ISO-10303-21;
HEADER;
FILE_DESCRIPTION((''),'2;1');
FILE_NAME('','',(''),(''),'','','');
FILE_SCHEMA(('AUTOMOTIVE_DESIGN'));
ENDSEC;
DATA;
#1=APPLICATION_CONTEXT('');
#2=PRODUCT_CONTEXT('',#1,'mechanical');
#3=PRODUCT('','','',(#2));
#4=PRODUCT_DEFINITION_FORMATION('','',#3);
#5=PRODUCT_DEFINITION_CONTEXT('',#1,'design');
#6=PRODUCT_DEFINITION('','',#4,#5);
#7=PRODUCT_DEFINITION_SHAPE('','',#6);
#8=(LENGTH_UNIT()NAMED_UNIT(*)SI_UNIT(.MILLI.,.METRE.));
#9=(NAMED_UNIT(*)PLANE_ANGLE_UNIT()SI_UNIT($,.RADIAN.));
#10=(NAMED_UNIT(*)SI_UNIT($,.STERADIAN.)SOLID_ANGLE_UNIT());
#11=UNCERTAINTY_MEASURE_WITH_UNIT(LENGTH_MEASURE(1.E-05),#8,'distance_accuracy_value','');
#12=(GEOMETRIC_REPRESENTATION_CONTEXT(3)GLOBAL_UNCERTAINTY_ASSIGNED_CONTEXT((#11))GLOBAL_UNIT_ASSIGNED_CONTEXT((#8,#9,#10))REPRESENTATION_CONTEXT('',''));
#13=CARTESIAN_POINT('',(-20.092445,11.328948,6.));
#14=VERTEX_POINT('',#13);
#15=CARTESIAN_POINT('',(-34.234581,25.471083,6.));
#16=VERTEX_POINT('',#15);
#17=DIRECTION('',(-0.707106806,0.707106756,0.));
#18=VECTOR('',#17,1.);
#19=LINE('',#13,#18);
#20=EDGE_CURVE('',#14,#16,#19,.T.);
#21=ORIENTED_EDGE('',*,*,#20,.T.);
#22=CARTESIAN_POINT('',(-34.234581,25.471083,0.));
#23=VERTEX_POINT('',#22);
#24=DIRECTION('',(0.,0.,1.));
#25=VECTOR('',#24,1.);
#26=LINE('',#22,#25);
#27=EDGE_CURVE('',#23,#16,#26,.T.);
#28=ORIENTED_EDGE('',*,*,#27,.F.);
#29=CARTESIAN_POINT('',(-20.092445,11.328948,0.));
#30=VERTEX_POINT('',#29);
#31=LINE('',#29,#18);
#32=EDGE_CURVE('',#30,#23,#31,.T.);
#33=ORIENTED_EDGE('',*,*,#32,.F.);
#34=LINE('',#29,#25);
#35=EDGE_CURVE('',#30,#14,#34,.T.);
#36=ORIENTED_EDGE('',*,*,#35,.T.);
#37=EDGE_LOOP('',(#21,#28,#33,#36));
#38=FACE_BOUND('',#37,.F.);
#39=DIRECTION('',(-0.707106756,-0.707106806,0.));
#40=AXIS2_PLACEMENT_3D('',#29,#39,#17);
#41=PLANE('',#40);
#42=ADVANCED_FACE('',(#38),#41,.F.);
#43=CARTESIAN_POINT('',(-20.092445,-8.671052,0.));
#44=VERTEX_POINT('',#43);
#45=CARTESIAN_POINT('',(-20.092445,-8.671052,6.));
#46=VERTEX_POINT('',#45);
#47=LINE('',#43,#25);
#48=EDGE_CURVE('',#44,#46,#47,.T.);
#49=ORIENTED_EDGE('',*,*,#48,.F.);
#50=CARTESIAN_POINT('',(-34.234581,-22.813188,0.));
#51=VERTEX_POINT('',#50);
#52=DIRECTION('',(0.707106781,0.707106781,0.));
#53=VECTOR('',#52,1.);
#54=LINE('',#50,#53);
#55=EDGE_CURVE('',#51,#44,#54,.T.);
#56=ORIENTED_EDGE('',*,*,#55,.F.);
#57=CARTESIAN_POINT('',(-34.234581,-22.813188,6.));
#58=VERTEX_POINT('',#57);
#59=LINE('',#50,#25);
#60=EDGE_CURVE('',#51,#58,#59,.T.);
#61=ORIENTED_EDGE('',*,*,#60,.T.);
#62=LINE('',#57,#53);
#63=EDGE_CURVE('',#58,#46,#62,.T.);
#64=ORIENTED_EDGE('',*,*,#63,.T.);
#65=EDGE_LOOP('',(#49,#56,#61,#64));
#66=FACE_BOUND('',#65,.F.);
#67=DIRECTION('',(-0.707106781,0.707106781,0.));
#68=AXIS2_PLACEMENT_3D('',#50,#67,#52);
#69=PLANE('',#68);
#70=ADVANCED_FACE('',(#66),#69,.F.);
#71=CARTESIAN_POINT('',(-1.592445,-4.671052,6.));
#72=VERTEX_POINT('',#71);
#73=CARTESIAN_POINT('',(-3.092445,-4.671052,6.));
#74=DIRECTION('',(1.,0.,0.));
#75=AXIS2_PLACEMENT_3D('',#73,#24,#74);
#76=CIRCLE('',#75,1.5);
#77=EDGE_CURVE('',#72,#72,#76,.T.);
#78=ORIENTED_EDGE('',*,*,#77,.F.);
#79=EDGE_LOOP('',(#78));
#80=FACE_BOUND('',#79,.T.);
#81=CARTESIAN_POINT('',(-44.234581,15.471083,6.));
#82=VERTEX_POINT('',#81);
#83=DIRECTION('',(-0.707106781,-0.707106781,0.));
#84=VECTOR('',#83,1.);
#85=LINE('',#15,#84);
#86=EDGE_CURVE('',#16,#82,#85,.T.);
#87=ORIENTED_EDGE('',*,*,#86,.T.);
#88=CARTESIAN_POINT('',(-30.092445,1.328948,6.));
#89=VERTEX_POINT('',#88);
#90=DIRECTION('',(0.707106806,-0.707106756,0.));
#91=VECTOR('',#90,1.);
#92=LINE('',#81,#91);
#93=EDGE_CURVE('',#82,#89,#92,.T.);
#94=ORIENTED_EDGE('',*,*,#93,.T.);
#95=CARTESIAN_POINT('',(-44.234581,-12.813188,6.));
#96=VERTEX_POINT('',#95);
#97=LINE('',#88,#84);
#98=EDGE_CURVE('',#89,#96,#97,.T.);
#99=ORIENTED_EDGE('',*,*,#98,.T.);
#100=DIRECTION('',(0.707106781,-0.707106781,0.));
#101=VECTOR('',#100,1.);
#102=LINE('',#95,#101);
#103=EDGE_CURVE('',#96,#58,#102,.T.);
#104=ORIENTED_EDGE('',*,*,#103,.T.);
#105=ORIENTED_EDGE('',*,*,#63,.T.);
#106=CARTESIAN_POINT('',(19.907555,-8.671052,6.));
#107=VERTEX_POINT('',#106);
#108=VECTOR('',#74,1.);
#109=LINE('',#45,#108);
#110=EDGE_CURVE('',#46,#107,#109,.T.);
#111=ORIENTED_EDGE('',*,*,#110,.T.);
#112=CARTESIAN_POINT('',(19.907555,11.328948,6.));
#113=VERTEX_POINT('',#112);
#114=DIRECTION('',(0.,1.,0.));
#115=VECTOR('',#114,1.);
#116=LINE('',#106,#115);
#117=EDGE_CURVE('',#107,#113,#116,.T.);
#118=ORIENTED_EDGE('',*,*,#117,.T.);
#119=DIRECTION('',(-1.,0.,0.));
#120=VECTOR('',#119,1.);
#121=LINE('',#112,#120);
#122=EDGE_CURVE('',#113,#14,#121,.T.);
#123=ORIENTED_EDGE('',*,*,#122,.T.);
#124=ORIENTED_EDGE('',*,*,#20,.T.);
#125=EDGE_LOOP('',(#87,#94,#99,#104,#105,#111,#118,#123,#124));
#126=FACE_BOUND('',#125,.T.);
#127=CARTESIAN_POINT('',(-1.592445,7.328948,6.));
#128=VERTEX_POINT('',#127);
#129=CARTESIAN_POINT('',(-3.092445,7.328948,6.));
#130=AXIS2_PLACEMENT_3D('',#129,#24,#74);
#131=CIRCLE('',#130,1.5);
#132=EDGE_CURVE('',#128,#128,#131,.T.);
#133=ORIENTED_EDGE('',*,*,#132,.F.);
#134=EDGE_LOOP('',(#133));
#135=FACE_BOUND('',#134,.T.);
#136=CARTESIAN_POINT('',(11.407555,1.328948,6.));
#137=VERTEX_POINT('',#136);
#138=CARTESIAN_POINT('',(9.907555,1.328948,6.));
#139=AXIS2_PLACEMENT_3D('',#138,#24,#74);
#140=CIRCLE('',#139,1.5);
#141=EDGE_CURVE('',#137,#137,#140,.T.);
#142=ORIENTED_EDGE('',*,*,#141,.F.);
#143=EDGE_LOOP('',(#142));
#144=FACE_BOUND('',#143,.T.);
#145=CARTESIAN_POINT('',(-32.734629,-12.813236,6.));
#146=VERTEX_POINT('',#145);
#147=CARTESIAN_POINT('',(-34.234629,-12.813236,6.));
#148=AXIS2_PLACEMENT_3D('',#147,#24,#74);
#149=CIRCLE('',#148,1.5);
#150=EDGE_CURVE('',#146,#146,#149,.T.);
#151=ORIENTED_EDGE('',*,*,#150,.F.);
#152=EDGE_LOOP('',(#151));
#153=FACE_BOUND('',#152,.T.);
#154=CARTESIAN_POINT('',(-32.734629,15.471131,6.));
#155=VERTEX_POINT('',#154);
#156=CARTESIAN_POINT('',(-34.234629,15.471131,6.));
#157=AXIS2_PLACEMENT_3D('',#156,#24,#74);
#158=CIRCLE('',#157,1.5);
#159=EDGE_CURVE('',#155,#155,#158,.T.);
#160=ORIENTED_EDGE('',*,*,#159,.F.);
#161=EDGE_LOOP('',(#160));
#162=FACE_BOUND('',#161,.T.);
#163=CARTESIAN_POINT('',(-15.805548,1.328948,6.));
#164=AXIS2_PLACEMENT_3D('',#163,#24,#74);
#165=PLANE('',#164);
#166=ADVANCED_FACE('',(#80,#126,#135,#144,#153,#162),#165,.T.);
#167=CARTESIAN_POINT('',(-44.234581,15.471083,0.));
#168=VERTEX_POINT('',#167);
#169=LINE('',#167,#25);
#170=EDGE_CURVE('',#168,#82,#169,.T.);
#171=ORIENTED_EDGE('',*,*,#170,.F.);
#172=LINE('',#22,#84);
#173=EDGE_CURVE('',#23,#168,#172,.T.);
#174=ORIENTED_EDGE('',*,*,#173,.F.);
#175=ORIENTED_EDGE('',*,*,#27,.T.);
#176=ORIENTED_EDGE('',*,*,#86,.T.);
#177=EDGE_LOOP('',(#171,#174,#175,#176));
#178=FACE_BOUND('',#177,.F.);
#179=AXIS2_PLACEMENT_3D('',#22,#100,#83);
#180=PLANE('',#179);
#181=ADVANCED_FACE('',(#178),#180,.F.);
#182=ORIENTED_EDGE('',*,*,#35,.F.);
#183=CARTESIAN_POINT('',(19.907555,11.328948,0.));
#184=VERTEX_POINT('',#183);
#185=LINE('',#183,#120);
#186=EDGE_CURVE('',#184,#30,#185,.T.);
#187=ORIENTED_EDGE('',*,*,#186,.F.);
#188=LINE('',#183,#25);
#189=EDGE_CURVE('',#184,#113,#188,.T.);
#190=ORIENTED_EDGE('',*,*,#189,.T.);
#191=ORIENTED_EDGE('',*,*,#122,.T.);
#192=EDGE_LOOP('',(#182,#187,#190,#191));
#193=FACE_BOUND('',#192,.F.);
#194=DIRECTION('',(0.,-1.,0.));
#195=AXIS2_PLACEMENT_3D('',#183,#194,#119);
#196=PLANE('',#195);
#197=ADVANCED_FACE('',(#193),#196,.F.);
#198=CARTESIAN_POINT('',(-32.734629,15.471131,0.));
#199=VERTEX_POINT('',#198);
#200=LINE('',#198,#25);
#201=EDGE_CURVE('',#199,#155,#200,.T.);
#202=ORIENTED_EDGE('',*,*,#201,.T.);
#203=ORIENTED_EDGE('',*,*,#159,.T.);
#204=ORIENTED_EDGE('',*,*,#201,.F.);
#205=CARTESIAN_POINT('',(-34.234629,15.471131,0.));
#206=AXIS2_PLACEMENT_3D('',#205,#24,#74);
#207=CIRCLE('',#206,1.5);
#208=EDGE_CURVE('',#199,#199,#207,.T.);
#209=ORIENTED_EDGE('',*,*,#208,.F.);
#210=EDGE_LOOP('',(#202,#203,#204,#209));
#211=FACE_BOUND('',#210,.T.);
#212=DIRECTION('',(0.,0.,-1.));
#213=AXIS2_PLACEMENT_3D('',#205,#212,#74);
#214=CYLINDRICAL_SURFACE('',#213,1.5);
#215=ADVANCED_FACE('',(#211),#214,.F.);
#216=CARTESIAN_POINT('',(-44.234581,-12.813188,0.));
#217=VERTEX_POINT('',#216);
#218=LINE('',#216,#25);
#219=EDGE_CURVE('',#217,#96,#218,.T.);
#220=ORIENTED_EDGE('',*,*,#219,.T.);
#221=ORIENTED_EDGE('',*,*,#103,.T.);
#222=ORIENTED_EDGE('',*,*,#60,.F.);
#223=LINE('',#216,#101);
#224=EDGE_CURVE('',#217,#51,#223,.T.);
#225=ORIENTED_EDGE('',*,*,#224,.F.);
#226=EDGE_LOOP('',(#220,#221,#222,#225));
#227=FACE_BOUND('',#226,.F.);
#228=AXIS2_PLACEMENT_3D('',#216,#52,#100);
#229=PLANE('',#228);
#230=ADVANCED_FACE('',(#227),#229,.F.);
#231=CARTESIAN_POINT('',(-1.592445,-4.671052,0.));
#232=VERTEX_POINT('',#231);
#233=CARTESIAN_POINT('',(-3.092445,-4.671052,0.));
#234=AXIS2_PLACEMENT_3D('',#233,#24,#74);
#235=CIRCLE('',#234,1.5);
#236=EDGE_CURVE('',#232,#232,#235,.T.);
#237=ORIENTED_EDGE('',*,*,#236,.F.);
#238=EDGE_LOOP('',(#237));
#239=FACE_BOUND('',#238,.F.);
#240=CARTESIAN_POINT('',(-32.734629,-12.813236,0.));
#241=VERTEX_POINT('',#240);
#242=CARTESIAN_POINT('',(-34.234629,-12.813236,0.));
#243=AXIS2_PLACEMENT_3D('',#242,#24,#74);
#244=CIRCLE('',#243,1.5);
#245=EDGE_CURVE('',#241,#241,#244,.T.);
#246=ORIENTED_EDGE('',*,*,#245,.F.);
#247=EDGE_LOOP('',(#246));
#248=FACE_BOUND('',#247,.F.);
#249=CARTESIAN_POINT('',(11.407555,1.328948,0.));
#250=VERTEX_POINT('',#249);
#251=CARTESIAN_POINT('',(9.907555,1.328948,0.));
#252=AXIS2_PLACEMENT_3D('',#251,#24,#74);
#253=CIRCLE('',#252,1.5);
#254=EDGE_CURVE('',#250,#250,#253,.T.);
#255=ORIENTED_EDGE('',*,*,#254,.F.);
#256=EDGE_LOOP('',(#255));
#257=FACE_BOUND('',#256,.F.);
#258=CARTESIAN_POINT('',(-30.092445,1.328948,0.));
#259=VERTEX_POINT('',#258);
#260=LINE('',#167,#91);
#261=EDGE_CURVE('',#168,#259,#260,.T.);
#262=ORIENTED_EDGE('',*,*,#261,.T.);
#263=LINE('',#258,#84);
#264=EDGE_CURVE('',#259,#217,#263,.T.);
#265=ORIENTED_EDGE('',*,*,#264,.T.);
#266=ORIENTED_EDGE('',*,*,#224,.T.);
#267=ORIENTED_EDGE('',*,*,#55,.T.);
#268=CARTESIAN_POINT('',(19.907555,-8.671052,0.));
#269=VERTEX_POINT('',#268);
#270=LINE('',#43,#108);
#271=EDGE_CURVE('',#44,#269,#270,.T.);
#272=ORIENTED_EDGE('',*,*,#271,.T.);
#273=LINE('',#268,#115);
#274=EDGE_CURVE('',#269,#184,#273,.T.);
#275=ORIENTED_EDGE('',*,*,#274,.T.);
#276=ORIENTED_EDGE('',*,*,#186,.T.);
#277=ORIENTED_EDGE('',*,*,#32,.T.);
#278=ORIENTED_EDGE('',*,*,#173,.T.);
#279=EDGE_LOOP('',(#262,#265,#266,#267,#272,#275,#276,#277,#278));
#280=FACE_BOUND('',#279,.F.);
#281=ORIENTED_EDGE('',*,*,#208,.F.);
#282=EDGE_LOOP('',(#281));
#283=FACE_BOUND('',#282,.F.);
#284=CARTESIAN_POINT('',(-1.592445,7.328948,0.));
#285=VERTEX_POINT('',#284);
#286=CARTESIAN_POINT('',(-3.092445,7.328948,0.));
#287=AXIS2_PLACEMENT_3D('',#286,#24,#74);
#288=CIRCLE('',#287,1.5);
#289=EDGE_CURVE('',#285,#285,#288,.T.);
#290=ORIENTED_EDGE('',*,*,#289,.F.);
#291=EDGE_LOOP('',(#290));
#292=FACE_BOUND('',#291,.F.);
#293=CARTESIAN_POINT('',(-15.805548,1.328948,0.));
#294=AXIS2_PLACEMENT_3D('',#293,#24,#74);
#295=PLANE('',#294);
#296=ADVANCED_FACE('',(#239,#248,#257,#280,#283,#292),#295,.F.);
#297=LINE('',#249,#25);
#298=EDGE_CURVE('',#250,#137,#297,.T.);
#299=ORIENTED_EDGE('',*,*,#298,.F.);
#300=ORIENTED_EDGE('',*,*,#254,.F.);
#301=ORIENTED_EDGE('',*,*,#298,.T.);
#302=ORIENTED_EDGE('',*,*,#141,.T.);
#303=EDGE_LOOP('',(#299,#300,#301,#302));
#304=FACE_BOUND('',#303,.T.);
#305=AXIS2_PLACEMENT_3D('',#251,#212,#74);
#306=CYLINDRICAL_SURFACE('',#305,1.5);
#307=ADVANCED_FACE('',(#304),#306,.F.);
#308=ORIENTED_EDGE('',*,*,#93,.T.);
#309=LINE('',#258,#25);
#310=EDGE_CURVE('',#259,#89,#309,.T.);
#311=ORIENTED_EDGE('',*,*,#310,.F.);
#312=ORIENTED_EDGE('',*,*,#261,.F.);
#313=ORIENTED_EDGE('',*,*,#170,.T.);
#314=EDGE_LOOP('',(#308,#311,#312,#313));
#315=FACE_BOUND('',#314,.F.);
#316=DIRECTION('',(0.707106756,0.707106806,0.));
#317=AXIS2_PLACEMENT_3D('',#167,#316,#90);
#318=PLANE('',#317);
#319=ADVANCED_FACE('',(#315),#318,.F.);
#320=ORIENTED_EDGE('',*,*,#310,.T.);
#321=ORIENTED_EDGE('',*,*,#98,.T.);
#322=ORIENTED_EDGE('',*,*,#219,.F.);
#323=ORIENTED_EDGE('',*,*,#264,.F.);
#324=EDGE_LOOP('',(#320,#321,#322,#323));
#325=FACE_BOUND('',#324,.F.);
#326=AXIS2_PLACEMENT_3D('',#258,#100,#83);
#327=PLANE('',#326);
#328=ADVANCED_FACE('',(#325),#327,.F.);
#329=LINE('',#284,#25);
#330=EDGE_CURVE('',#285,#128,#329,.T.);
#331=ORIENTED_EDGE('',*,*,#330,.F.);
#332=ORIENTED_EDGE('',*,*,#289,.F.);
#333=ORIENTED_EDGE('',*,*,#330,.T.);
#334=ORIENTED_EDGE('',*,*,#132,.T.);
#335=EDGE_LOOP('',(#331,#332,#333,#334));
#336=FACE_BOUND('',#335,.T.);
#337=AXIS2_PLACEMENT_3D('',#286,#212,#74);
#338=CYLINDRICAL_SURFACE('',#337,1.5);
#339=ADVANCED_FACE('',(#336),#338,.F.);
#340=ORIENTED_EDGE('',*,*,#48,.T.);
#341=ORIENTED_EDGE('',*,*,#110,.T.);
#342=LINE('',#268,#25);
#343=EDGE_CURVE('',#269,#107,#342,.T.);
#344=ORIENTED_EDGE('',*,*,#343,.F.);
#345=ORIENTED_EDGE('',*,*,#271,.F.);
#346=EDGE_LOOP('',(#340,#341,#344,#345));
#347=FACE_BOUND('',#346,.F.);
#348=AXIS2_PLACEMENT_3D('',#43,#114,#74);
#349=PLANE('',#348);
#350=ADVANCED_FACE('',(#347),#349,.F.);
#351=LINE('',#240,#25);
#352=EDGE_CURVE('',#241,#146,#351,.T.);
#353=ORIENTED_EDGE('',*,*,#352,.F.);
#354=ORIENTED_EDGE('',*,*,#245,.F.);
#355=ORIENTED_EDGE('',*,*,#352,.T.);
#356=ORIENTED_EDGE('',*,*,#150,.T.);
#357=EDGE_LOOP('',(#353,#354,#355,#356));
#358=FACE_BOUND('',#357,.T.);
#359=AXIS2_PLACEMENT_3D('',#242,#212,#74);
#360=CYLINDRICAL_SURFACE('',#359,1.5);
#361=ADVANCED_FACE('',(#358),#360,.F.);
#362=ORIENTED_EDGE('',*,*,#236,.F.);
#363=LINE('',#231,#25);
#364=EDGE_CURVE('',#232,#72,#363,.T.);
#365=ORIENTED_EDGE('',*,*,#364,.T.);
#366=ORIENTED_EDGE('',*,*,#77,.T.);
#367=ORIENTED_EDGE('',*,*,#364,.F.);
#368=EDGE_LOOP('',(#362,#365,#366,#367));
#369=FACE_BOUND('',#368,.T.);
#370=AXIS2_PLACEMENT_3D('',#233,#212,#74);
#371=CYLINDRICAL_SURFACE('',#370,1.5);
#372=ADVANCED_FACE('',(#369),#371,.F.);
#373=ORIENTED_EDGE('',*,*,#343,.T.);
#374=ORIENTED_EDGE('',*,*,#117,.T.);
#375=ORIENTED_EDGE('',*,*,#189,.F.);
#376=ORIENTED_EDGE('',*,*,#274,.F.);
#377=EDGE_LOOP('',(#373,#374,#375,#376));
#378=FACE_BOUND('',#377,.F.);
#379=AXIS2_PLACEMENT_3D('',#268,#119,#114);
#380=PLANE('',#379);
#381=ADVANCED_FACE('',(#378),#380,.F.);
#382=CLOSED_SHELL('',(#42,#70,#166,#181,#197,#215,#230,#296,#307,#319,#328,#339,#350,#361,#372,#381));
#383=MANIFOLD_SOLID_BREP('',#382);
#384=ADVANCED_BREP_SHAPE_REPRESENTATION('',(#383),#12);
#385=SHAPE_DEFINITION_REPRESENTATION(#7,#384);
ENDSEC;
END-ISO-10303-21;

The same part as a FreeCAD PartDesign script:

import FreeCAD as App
import Part
import Sketcher

doc = App.newDocument("Part")
body = doc.addObject("PartDesign::Body", "Body")

sketch1 = body.newObject("Sketcher::SketchObject", "Sketch")
sketch1.AttachmentSupport = (doc.getObject("XY_Plane"), [""])
sketch1.MapMode = "FlatFace"
sketch1.addGeometry(Part.LineSegment(App.Vector(-20.1, 11.3, 0), App.Vector(-34.2, 25.5, 0)), False)
sketch1.addGeometry(Part.LineSegment(App.Vector(-34.2, 25.5, 0), App.Vector(-44.2, 15.5, 0)), False)
sketch1.addGeometry(Part.LineSegment(App.Vector(-44.2, 15.5, 0), App.Vector(-30.1, 1.3, 0)), False)
sketch1.addGeometry(Part.LineSegment(App.Vector(-30.1, 1.3, 0), App.Vector(-44.2, -12.8, 0)), False)
sketch1.addGeometry(Part.LineSegment(App.Vector(-44.2, -12.8, 0), App.Vector(-34.2, -22.8, 0)), False)
sketch1.addGeometry(Part.LineSegment(App.Vector(-34.2, -22.8, 0), App.Vector(-20.1, -8.7, 0)), False)
sketch1.addGeometry(Part.LineSegment(App.Vector(-20.1, -8.7, 0), App.Vector(19.9, -8.7, 0)), False)
sketch1.addGeometry(Part.LineSegment(App.Vector(19.9, -8.7, 0), App.Vector(19.9, 11.3, 0)), False)
sketch1.addGeometry(Part.LineSegment(App.Vector(19.9, 11.3, 0), App.Vector(-20.1, 11.3, 0)), False)
sketch1.addGeometry(Part.Circle(App.Vector(-34.2, -12.8, 0), App.Vector(0, 0, 1), 1.5), False)
sketch1.addGeometry(Part.Circle(App.Vector(-3.1, -4.7, 0), App.Vector(0, 0, 1), 1.5), False)
sketch1.addGeometry(Part.Circle(App.Vector(-34.2, 15.5, 0), App.Vector(0, 0, 1), 1.5), False)
sketch1.addGeometry(Part.Circle(App.Vector(-3.1, 7.3, 0), App.Vector(0, 0, 1), 1.5), False)
sketch1.addGeometry(Part.Circle(App.Vector(9.9, 1.3, 0), App.Vector(0, 0, 1), 1.5), False)
sketch1.addConstraint(Sketcher.Constraint("Coincident", 0, 2, 1, 1))
sketch1.addConstraint(Sketcher.Constraint("Coincident", 1, 2, 2, 1))
sketch1.addConstraint(Sketcher.Constraint("Coincident", 2, 2, 3, 1))
sketch1.addConstraint(Sketcher.Constraint("Coincident", 3, 2, 4, 1))
sketch1.addConstraint(Sketcher.Constraint("Coincident", 4, 2, 5, 1))
sketch1.addConstraint(Sketcher.Constraint("Coincident", 5, 2, 6, 1))
sketch1.addConstraint(Sketcher.Constraint("Coincident", 6, 2, 7, 1))
sketch1.addConstraint(Sketcher.Constraint("Coincident", 7, 2, 8, 1))
sketch1.addConstraint(Sketcher.Constraint("Coincident", 8, 2, 0, 1))
sketch1.addConstraint(Sketcher.Constraint("Horizontal", 6))
sketch1.addConstraint(Sketcher.Constraint("Vertical", 7))
sketch1.addConstraint(Sketcher.Constraint("Horizontal", 8))
sketch1.addConstraint(Sketcher.Constraint("Equal", 9, 10))
sketch1.addConstraint(Sketcher.Constraint("Equal", 10, 11))
sketch1.addConstraint(Sketcher.Constraint("Equal", 11, 12))
sketch1.addConstraint(Sketcher.Constraint("Equal", 12, 13))
sketch1.addConstraint(Sketcher.Constraint("Perpendicular", 0, 1))
sketch1.addConstraint(Sketcher.Constraint("Perpendicular", 1, 2))
sketch1.addConstraint(Sketcher.Constraint("Perpendicular", 2, 3))
sketch1.addConstraint(Sketcher.Constraint("Perpendicular", 3, 4))
sketch1.addConstraint(Sketcher.Constraint("Perpendicular", 4, 5))
sketch1.addConstraint(Sketcher.Constraint("Horizontal", 13, 3, 2, 2))
sketch1.addConstraint(Sketcher.Constraint("Vertical", 9, 3, 11, 3))
sketch1.addConstraint(Sketcher.Constraint("Vertical", 10, 3, 12, 3))
sketch1.addConstraint(Sketcher.Constraint("Vertical", 1, 2, 3, 2))
sketch1.addConstraint(Sketcher.Constraint("Vertical", 0, 2, 4, 2))
sketch1.addConstraint(Sketcher.Constraint("Vertical", 5, 2, 8, 2))
sketch1.addConstraint(Sketcher.Constraint("Equal", 0, 2))
sketch1.addConstraint(Sketcher.Constraint("Equal", 2, 3))
sketch1.addConstraint(Sketcher.Constraint("Diameter", 9, 3.0))
sketch1.addConstraint(Sketcher.Constraint("DistanceX", 6, 1, 6, 2, 40.0))
sketch1.addConstraint(Sketcher.Constraint("DistanceY", 7, 1, 7, 2, 20.0))
sketch1.addConstraint(Sketcher.Constraint("Distance", 0, 20.0))
sketch1.addConstraint(Sketcher.Constraint("DistanceY", 10, 3, 12, 3, 12.0))
sketch1.addConstraint(Sketcher.Constraint("DistanceX", 10, 3, 13, 3, 13.0))
sketch1.addConstraint(Sketcher.Constraint("DistanceY", 10, 3, 13, 3, 6.0))
sketch1.addConstraint(Sketcher.Constraint("DistanceX", 2, 2, 10, 3, 27.0))
sketch1.addConstraint(Sketcher.Constraint("DistanceX", 9, 3, -1, 1, 34.234629))
sketch1.addConstraint(Sketcher.Constraint("DistanceY", -1, 1, 11, 3, 15.471131))
sketch1.addConstraint(Sketcher.Constraint("DistanceX", 0, 2, -1, 1, 34.234581))
sketch1.addConstraint(Sketcher.Constraint("DistanceY", 4, 2, -1, 1, 22.813188))
sketch1.addConstraint(Sketcher.Constraint("DistanceY", 9, 3, 0, 2, 38.284319))
pad1 = body.newObject("PartDesign::Pad", "Pad")
pad1.Profile = sketch1
pad1.Length = 6

doc.recompute()
